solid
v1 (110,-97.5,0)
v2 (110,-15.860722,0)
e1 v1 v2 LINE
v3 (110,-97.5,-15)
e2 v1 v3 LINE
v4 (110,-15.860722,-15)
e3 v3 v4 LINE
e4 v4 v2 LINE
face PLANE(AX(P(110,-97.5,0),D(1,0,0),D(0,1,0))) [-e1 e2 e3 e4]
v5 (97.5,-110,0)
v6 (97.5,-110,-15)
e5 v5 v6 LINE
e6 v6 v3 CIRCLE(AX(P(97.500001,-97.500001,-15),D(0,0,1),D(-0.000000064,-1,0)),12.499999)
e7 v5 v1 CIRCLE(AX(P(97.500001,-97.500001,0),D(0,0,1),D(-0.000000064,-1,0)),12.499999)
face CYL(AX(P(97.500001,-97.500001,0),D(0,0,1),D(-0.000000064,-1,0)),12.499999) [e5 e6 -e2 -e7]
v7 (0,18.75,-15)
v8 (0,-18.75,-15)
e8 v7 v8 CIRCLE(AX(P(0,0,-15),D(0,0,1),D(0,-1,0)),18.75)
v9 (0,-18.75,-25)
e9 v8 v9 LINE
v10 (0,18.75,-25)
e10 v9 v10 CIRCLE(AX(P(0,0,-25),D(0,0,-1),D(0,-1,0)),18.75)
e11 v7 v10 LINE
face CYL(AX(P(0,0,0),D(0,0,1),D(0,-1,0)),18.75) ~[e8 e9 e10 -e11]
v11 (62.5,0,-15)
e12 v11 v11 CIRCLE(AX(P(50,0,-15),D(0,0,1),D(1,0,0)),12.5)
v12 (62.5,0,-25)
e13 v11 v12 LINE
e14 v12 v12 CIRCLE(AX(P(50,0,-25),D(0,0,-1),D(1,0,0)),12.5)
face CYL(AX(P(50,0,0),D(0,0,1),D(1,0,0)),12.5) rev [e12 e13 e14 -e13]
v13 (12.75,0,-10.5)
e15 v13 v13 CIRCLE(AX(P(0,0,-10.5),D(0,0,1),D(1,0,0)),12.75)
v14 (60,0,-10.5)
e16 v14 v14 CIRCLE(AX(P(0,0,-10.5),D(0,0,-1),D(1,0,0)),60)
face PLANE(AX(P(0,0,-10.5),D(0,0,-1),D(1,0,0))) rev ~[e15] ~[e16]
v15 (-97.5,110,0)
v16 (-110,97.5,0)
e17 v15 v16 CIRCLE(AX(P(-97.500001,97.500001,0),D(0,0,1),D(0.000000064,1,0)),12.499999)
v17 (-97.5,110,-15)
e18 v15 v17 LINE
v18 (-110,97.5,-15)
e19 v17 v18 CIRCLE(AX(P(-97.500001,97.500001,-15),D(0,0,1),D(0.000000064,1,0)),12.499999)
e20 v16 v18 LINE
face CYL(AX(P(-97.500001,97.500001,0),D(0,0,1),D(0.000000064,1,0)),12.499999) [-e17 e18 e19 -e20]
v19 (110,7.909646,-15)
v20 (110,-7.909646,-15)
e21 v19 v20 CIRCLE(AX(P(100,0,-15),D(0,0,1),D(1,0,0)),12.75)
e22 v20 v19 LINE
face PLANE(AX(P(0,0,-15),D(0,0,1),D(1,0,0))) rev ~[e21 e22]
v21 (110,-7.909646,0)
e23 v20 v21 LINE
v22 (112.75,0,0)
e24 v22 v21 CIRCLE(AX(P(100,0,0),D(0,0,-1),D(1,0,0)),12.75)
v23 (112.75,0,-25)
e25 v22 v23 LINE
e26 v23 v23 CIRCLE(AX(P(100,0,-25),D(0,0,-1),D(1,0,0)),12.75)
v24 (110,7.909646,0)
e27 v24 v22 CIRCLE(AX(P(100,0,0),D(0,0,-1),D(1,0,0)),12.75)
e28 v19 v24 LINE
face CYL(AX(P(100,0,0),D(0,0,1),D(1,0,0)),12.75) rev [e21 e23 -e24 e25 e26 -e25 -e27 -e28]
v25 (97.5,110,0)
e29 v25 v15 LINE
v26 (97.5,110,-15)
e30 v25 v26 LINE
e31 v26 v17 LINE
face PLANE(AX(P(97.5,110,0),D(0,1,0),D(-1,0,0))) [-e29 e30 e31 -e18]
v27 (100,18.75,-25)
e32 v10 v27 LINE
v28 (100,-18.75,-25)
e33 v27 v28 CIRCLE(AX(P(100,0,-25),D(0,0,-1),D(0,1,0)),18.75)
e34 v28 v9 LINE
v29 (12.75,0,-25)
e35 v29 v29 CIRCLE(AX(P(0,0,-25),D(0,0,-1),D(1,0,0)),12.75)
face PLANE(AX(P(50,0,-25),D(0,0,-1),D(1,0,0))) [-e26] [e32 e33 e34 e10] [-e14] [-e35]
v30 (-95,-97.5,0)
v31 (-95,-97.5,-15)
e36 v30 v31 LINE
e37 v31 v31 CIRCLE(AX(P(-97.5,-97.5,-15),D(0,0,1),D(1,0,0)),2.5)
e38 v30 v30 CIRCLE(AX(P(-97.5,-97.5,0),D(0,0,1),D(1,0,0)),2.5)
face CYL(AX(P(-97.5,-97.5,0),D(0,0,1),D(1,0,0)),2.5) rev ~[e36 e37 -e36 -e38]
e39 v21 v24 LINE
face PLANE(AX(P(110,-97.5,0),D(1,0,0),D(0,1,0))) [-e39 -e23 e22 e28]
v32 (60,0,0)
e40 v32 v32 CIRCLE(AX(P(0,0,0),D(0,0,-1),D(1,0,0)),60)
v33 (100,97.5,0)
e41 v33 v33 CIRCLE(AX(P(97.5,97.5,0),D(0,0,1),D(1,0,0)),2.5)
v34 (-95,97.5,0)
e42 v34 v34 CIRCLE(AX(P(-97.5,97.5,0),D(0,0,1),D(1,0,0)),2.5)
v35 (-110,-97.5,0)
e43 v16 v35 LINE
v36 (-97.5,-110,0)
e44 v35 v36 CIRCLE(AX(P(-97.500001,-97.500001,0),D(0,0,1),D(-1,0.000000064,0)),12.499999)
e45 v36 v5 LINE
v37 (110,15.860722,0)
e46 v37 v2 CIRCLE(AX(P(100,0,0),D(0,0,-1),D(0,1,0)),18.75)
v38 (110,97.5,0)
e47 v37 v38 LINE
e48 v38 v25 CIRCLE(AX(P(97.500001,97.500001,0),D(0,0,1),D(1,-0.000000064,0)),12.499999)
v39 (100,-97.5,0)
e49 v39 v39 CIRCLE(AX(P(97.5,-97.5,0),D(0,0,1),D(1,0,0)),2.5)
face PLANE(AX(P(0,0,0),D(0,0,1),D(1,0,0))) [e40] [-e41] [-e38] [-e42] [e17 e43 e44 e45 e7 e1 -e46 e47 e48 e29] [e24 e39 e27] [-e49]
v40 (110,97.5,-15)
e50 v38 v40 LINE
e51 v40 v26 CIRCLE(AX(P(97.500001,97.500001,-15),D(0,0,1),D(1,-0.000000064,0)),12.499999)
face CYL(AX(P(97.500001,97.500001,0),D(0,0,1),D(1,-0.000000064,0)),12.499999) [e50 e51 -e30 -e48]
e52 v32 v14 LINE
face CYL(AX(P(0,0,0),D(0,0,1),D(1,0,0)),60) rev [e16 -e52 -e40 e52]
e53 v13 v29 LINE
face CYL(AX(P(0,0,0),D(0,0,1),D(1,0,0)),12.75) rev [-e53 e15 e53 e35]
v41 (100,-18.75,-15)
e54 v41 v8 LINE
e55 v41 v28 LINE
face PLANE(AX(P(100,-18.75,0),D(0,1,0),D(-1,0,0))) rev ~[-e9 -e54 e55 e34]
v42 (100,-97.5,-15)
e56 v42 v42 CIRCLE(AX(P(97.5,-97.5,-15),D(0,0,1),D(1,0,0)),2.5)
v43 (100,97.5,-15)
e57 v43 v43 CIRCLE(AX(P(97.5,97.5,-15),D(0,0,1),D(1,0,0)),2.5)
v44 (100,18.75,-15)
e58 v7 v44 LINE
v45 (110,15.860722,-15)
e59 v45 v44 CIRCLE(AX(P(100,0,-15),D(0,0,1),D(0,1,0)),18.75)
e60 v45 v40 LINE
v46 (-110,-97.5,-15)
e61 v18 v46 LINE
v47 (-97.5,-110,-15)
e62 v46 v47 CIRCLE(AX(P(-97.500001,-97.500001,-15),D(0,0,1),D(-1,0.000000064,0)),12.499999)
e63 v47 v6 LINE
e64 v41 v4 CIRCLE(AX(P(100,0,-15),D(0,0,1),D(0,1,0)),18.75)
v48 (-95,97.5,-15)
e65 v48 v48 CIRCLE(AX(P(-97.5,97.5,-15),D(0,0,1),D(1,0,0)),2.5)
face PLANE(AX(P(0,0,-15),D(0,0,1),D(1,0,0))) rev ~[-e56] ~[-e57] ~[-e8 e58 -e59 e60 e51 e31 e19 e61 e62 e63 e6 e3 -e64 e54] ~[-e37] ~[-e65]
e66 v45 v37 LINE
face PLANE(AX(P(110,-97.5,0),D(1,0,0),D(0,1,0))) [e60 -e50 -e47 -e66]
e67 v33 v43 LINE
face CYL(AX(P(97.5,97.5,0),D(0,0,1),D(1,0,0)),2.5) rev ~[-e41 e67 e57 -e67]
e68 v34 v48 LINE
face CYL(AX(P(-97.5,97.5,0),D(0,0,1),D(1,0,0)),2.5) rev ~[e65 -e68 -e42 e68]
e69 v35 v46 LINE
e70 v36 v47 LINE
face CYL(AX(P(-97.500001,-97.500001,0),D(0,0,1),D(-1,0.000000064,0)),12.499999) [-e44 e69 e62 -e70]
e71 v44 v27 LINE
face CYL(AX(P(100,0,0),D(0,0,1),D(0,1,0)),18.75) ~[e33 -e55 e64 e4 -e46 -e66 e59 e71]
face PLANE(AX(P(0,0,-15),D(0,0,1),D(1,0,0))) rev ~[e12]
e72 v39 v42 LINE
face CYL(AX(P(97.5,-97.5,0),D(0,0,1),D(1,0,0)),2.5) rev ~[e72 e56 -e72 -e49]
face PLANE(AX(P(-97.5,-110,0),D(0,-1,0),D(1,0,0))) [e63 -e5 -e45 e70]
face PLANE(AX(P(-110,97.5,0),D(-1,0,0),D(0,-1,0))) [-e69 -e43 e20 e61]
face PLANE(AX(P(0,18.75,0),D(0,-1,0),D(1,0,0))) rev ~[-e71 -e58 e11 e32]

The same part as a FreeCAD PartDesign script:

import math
import FreeCAD as App
import Part
import Sketcher
Q = App.Units.Quantity

doc = App.newDocument("Part")
params = doc.addObject("Spreadsheet::Sheet", "Params")
for row, (alias, value) in enumerate([
    ("sketch1_diameter", "5 mm"),
    ("sketch1_diameter2", "32 mm"),
    ("sketch1_radius", "12.499999 mm"),
    ("sketch1_width", "195 mm"),
    ("pad1_length", "15 mm"),
    ("sketch2_diameter", "25 mm"),
    ("sketch2_diameter2", "25.5 mm"),
    ("sketch2_width", "100 mm"),
    ("sketch2_radius", "18.75 mm"),
    ("pad2_length", "25 mm"),
    ("sketch3_diameter", "120 mm"),
    ("pocket1_length", "10.5 mm"),
], start=1):
    params.set(f"A{row}", alias)
    params.set(f"B{row}", "=" + value)
    params.setAlias(f"B{row}", alias)

body = doc.addObject("PartDesign::Body", "Body")

# Sketch on XY plane
sketch1 = body.newObject("Sketcher::SketchObject", "Sketch")
sketch1.AttachmentSupport = (doc.getObject("XY_Plane"), [""])
sketch1.MapMode = "FlatFace"
sketch1.addGeometry(Part.ArcOfCircle(Part.Circle(App.Vector(-97.500001, 97.500001, 0), App.Vector(0, 0, 1), 12.499999), math.radians(89.999996), math.radians(180.000004)), False)
sketch1.addGeometry(Part.LineSegment(App.Vector(-110, 97.5, 0), App.Vector(-110, -97.5, 0)), False)
sketch1.addGeometry(Part.ArcOfCircle(Part.Circle(App.Vector(-97.500001, -97.500001, 0), App.Vector(0, 0, 1), 12.499999), math.radians(179.999996), math.radians(270.000004)), False)
sketch1.addGeometry(Part.LineSegment(App.Vector(-97.5, -110, 0), App.Vector(97.5, -110, 0)), False)
sketch1.addGeometry(Part.ArcOfCircle(Part.Circle(App.Vector(97.500001, -97.500001, 0), App.Vector(0, 0, 1), 12.499999), math.radians(-90.000004), math.radians(0.000004)), False)
sketch1.addGeometry(Part.LineSegment(App.Vector(110, -97.5, 0), App.Vector(110, 97.5, 0)), False)
sketch1.addGeometry(Part.ArcOfCircle(Part.Circle(App.Vector(97.500001, 97.500001, 0), App.Vector(0, 0, 1), 12.499999), math.radians(-0.000004), math.radians(90.000004)), False)
sketch1.addGeometry(Part.LineSegment(App.Vector(97.5, 110, 0), App.Vector(-97.5, 110, 0)), False)
sketch1.addGeometry(Part.Circle(App.Vector(-97.5, -97.5, 0), App.Vector(0, 0, 1), 2.5), False)
sketch1.addGeometry(Part.Circle(App.Vector(97.5, -97.5, 0), App.Vector(0, 0, 1), 2.5), False)
sketch1.addGeometry(Part.Circle(App.Vector(-97.5, 97.5, 0), App.Vector(0, 0, 1), 2.5), False)
sketch1.addGeometry(Part.Circle(App.Vector(0, 0, 0), App.Vector(0, 0, 1), 16), False)
sketch1.addGeometry(Part.Circle(App.Vector(97.5, 97.5, 0), App.Vector(0, 0, 1), 2.5), False)
sketch1.addConstraint(Sketcher.Constraint("Tangent", 0, 2, 1, 1))
sketch1.addConstraint(Sketcher.Constraint("Tangent", 1, 2, 2, 1))
sketch1.addConstraint(Sketcher.Constraint("Tangent", 2, 2, 3, 1))
sketch1.addConstraint(Sketcher.Constraint("Tangent", 3, 2, 4, 1))
sketch1.addConstraint(Sketcher.Constraint("Tangent", 4, 2, 5, 1))
sketch1.addConstraint(Sketcher.Constraint("Tangent", 5, 2, 6, 1))
sketch1.addConstraint(Sketcher.Constraint("Tangent", 6, 2, 7, 1))
sketch1.addConstraint(Sketcher.Constraint("Tangent", 7, 2, 0, 1))
sketch1.addConstraint(Sketcher.Constraint("Vertical", 1))
sketch1.addConstraint(Sketcher.Constraint("Horizontal", 3))
sketch1.addConstraint(Sketcher.Constraint("Vertical", 5))
sketch1.addConstraint(Sketcher.Constraint("Horizontal", 7))
sketch1.addConstraint(Sketcher.Constraint("Coincident", 11, 3, -1, 1))
sketch1.addConstraint(Sketcher.Constraint("Coincident", 8, 3, 2, 3))
sketch1.addConstraint(Sketcher.Constraint("Coincident", 9, 3, 4, 3))
sketch1.addConstraint(Sketcher.Constraint("Coincident", 10, 3, 0, 3))
sketch1.addConstraint(Sketcher.Constraint("Coincident", 12, 3, 6, 3))
sketch1.addConstraint(Sketcher.Constraint("Equal", 0, 2))
sketch1.addConstraint(Sketcher.Constraint("Equal", 2, 4))
sketch1.addConstraint(Sketcher.Constraint("Equal", 4, 6))
sketch1.addConstraint(Sketcher.Constraint("Equal", 8, 9))
sketch1.addConstraint(Sketcher.Constraint("Equal", 9, 10))
sketch1.addConstraint(Sketcher.Constraint("Equal", 10, 12))
sketch1.addConstraint(Sketcher.Constraint("Symmetric", 0, 3, 4, 3, -1, 1))
sketch1.addConstraint(Sketcher.Constraint("Equal", 7, 1))
sketch1.addConstraint(Sketcher.Constraint("Diameter", 8, Q("5 mm")))
sketch1.addConstraint(Sketcher.Constraint("Diameter", 11, Q("32 mm")))
sketch1.addConstraint(Sketcher.Constraint("Radius", 0, Q("12.499999 mm")))
sketch1.addConstraint(Sketcher.Constraint("DistanceX", 3, 1, 3, 2, Q("195 mm")))
sketch1.setExpression("Constraints[25]", "Params.sketch1_diameter")
sketch1.setExpression("Constraints[26]", "Params.sketch1_diameter2")
sketch1.setExpression("Constraints[27]", "Params.sketch1_radius")
sketch1.setExpression("Constraints[28]", "Params.sketch1_width")
pad1 = body.newObject("PartDesign::Pad", "Pad")
pad1.Profile = sketch1
pad1.setExpression("Length", "Params.pad1_length")
pad1.Reversed = True

# Sketch on XY plane
sketch2 = body.newObject("Sketcher::SketchObject", "Sketch001")
sketch2.AttachmentSupport = (doc.getObject("XY_Plane"), [""])
sketch2.MapMode = "FlatFace"
sketch2.addGeometry(Part.ArcOfCircle(Part.Circle(App.Vector(0, 0, 0), App.Vector(0, 0, 1), 18.75), math.radians(90), math.radians(270)), False)
sketch2.addGeometry(Part.LineSegment(App.Vector(0, 18.75, 0), App.Vector(100, 18.75, 0)), False)
sketch2.addGeometry(Part.ArcOfCircle(Part.Circle(App.Vector(100, 0, 0), App.Vector(0, 0, 1), 18.75), math.radians(-90), math.radians(90)), False)
sketch2.addGeometry(Part.LineSegment(App.Vector(100, -18.75, 0), App.Vector(0, -18.75, 0)), False)
sketch2.addGeometry(Part.Circle(App.Vector(0, 0, 0), App.Vector(0, 0, 1), 12.75), False)
sketch2.addGeometry(Part.Circle(App.Vector(50, 0, 0), App.Vector(0, 0, 1), 12.5), False)
sketch2.addGeometry(Part.Circle(App.Vector(100, 0, 0), App.Vector(0, 0, 1), 12.75), False)
sketch2.addConstraint(Sketcher.Constraint("Tangent", 0, 1, 1, 1))
sketch2.addConstraint(Sketcher.Constraint("Tangent", 1, 2, 2, 2))
sketch2.addConstraint(Sketcher.Constraint("Tangent", 2, 1, 3, 1))
sketch2.addConstraint(Sketcher.Constraint("Tangent", 3, 2, 0, 2))
sketch2.addConstraint(Sketcher.Constraint("Horizontal", 1))
sketch2.addConstraint(Sketcher.Constraint("Horizontal", 3))
sketch2.addConstraint(Sketcher.Constraint("Coincident", 0, 3, -1, 1))
sketch2.addConstraint(Sketcher.Constraint("Coincident", 4, 3, -1, 1))
sketch2.addConstraint(Sketcher.Constraint("Coincident", 6, 3, 2, 3))
sketch2.addConstraint(Sketcher.Constraint("Equal", 4, 6))
sketch2.addConstraint(Sketcher.Constraint("PointOnObject", 5, 3, -1))
sketch2.addConstraint(Sketcher.Constraint("Diameter", 5, Q("25 mm")))
sketch2.addConstraint(Sketcher.Constraint("Diameter", 4, Q("25.5 mm")))
sketch2.addConstraint(Sketcher.Constraint("DistanceX", 1, 1, 1, 2, Q("100 mm")))
sketch2.addConstraint(Sketcher.Constraint("Radius", 0, Q("18.75 mm")))
sketch2.addConstraint(Sketcher.Constraint("DistanceX", -1, 1, 5, 3, Q("50 mm")))
sketch2.setExpression("Constraints[11]", "Params.sketch2_diameter")
sketch2.setExpression("Constraints[12]", "Params.sketch2_diameter2")
sketch2.setExpression("Constraints[13]", "Params.sketch2_width")
sketch2.setExpression("Constraints[14]", "Params.sketch2_radius")
pad2 = body.newObject("PartDesign::Pad", "Pad001")
pad2.Profile = sketch2
pad2.setExpression("Length", "Params.pad2_length")
pad2.Reversed = True

# Sketch on XY plane
sketch3 = body.newObject("Sketcher::SketchObject", "Sketch002")
sketch3.AttachmentSupport = (doc.getObject("XY_Plane"), [""])
sketch3.MapMode = "FlatFace"
sketch3.addGeometry(Part.Circle(App.Vector(0, 0, 0), App.Vector(0, 0, 1), 60), False)
sketch3.addConstraint(Sketcher.Constraint("Coincident", 0, 3, -1, 1))
sketch3.addConstraint(Sketcher.Constraint("Diameter", 0, Q("120 mm")))
sketch3.setExpression("Constraints[1]", "Params.sketch3_diameter")
pocket1 = body.newObject("PartDesign::Pocket", "Pocket")
pocket1.Profile = sketch3
pocket1.setExpression("Length", "Params.pocket1_length")

doc.recompute()
